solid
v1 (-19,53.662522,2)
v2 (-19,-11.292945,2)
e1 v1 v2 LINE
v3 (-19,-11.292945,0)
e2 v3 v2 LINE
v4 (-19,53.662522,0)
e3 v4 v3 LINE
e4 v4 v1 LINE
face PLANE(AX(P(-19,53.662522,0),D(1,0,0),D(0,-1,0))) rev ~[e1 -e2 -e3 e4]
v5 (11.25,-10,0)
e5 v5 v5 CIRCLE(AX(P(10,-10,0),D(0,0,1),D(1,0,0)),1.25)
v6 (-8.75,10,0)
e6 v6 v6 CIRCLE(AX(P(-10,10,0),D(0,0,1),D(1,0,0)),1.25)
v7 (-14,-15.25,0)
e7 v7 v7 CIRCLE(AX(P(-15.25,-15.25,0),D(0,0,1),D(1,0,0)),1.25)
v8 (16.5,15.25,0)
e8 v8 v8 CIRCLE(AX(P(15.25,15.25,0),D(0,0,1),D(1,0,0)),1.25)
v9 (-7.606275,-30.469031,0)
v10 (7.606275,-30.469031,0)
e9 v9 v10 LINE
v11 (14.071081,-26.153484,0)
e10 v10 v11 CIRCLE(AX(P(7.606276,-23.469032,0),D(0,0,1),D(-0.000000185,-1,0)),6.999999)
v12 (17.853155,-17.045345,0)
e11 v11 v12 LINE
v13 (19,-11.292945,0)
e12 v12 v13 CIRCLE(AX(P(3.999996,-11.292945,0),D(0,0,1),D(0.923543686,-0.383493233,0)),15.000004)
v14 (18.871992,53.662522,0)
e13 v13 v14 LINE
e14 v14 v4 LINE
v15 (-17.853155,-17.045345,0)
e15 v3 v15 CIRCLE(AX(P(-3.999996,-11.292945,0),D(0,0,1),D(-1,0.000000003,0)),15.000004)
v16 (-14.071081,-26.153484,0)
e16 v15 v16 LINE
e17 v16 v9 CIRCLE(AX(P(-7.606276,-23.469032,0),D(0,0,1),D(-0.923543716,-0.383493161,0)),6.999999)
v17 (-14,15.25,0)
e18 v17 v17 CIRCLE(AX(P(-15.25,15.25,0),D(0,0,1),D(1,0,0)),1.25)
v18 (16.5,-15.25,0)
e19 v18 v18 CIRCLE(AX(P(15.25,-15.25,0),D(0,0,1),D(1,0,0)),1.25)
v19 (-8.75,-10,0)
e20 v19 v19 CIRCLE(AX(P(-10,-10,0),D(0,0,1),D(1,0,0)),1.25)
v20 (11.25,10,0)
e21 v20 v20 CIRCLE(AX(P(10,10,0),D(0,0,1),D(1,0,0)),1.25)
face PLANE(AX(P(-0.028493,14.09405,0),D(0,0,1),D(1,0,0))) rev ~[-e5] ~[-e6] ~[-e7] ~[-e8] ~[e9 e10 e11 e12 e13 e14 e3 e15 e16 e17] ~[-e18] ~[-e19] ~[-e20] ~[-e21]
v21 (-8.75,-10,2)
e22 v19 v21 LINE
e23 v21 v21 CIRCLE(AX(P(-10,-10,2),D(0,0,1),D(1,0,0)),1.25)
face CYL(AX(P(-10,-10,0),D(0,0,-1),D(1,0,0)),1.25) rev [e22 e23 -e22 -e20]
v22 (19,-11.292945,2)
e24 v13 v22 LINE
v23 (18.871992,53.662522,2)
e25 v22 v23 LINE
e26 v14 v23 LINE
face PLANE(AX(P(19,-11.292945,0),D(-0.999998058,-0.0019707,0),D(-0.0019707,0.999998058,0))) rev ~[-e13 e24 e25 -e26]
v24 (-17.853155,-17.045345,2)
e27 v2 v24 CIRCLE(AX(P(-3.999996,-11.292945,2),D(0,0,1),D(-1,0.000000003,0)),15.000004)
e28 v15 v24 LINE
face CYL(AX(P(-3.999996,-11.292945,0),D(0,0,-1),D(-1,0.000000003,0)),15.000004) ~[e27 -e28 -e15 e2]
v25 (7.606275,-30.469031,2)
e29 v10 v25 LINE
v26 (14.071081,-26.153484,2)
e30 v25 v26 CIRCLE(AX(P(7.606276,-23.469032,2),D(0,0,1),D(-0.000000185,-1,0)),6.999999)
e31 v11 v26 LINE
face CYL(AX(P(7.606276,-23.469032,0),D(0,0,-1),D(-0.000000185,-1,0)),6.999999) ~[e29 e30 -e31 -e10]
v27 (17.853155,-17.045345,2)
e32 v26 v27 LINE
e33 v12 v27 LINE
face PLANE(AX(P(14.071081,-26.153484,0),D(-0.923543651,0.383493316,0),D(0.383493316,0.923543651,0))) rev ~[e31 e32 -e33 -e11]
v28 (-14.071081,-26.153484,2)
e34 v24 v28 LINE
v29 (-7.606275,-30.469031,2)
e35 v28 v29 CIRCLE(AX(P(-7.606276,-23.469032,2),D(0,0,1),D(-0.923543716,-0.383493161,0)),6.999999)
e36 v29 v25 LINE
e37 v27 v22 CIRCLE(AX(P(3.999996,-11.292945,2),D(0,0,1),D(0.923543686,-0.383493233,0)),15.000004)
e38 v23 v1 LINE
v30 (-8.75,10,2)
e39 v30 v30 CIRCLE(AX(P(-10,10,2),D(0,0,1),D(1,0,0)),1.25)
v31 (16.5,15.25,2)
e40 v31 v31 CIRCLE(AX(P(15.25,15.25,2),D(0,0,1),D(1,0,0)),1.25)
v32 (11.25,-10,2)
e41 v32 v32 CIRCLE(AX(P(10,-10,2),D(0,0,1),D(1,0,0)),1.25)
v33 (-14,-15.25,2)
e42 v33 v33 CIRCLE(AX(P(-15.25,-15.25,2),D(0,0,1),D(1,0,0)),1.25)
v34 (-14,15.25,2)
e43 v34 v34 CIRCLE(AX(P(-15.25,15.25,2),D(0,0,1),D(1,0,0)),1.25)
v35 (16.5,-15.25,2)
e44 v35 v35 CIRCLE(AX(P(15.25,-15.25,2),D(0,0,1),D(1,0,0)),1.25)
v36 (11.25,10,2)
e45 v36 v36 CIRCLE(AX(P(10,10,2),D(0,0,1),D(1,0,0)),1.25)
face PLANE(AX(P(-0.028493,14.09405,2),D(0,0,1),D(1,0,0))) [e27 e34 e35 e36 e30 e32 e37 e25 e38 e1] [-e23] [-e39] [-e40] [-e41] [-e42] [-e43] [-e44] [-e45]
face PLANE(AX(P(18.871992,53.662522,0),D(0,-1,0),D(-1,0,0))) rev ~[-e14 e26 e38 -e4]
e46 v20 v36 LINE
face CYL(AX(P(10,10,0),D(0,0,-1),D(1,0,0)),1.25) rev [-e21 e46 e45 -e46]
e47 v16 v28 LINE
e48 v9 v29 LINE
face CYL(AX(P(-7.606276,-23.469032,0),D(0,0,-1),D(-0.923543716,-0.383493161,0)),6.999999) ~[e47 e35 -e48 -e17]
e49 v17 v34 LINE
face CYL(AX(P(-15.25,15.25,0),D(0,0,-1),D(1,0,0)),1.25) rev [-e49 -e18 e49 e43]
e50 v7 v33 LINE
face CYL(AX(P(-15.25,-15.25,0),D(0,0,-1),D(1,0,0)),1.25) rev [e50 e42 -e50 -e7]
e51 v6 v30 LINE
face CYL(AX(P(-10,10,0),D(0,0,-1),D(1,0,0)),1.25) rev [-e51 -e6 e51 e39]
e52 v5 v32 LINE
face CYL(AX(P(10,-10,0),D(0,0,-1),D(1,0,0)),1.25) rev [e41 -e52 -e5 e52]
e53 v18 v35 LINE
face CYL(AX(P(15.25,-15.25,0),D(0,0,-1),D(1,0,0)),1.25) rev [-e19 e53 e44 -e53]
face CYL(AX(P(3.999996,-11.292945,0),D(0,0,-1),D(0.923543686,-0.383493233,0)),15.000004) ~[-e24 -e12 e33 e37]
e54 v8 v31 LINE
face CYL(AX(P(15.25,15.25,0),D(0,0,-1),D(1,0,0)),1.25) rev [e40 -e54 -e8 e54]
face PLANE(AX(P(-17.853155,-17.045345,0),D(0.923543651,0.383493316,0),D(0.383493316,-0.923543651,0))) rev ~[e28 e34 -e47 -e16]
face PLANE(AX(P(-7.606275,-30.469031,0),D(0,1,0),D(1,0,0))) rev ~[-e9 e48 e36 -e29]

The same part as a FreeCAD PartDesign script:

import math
import FreeCAD as App
import Part
import Sketcher

doc = App.newDocument("Part")
body = doc.addObject("PartDesign::Body", "Body")

sketch1 = body.newObject("Sketcher::SketchObject", "Sketch")
sketch1.AttachmentSupport = (doc.getObject("XY_Plane"), [""])
sketch1.MapMode = "FlatFace"
sketch1.addGeometry(Part.LineSegment(App.Vector(18.9, 53.7, 0), App.Vector(-19, 53.7, 0)), False)
sketch1.addGeometry(Part.LineSegment(App.Vector(-19, 53.7, 0), App.Vector(-19, -11.3, 0)), False)
sketch1.addGeometry(Part.ArcOfCircle(Part.Circle(App.Vector(-4, -11.3, 0), App.Vector(0, 0, 1), 15), math.radians(180), math.radians(203)), False)
sketch1.addGeometry(Part.LineSegment(App.Vector(-17.9, -17, 0), App.Vector(-14.1, -26.2, 0)), False)
sketch1.addGeometry(Part.ArcOfCircle(Part.Circle(App.Vector(-7.6, -23.5, 0), App.Vector(0, 0, 1), 7), math.radians(-157), math.radians(-90)), False)
sketch1.addGeometry(Part.LineSegment(App.Vector(-7.6, -30.5, 0), App.Vector(7.6, -30.5, 0)), False)
sketch1.addGeometry(Part.ArcOfCircle(Part.Circle(App.Vector(7.6, -23.5, 0), App.Vector(0, 0, 1), 7), math.radians(-90), math.radians(-23)), False)
sketch1.addGeometry(Part.LineSegment(App.Vector(14.1, -26.2, 0), App.Vector(17.9, -17, 0)), False)
sketch1.addGeometry(Part.ArcOfCircle(Part.Circle(App.Vector(4, -11.3, 0), App.Vector(0, 0, 1), 15), math.radians(-23), math.radians(0)), False)
sketch1.addGeometry(Part.LineSegment(App.Vector(19, -11.3, 0), App.Vector(18.9, 53.7, 0)), False)
sketch1.addGeometry(Part.Circle(App.Vector(-15.2, -15.2, 0), App.Vector(0, 0, 1), 1.2), False)
sketch1.addGeometry(Part.Circle(App.Vector(-10, -10, 0), App.Vector(0, 0, 1), 1.2), False)
sketch1.addGeometry(Part.Circle(App.Vector(15.2, -15.2, 0), App.Vector(0, 0, 1), 1.2), False)
sketch1.addGeometry(Part.Circle(App.Vector(10, -10, 0), App.Vector(0, 0, 1), 1.2), False)
sketch1.addGeometry(Part.Circle(App.Vector(-10, 10, 0), App.Vector(0, 0, 1), 1.2), False)
sketch1.addGeometry(Part.Circle(App.Vector(-15.2, 15.2, 0), App.Vector(0, 0, 1), 1.2), False)
sketch1.addGeometry(Part.Circle(App.Vector(10, 10, 0), App.Vector(0, 0, 1), 1.2), False)
sketch1.addGeometry(Part.Circle(App.Vector(15.2, 15.2, 0), App.Vector(0, 0, 1), 1.2), False)
sketch1.addConstraint(Sketcher.Constraint("Coincident", 0, 2, 1, 1))
sketch1.addConstraint(Sketcher.Constraint("Tangent", 1, 2, 2, 1))
sketch1.addConstraint(Sketcher.Constraint("Tangent", 2, 2, 3, 1))
sketch1.addConstraint(Sketcher.Constraint("Tangent", 3, 2, 4, 1))
sketch1.addConstraint(Sketcher.Constraint("Tangent", 4, 2, 5, 1))
sketch1.addConstraint(Sketcher.Constraint("Tangent", 5, 2, 6, 1))
sketch1.addConstraint(Sketcher.Constraint("Tangent", 6, 2, 7, 1))
sketch1.addConstraint(Sketcher.Constraint("Tangent", 7, 2, 8, 1))
sketch1.addConstraint(Sketcher.Constraint("Coincident", 8, 2, 9, 1))
sketch1.addConstraint(Sketcher.Constraint("Coincident", 9, 2, 0, 1))
sketch1.addConstraint(Sketcher.Constraint("Horizontal", 0))
sketch1.addConstraint(Sketcher.Constraint("Vertical", 1))
sketch1.addConstraint(Sketcher.Constraint("Horizontal", 5))
sketch1.addConstraint(Sketcher.Constraint("Equal", 4, 6))
sketch1.addConstraint(Sketcher.Constraint("Equal", 2, 8))
sketch1.addConstraint(Sketcher.Constraint("Equal", 10, 11))
sketch1.addConstraint(Sketcher.Constraint("Equal", 11, 12))
sketch1.addConstraint(Sketcher.Constraint("Equal", 12, 13))
sketch1.addConstraint(Sketcher.Constraint("Equal", 13, 14))
sketch1.addConstraint(Sketcher.Constraint("Equal", 14, 15))
sketch1.addConstraint(Sketcher.Constraint("Equal", 15, 16))
sketch1.addConstraint(Sketcher.Constraint("Equal", 16, 17))
sketch1.addConstraint(Sketcher.Constraint("Symmetric", 13, 3, 14, 3, -1, 1))
sketch1.addConstraint(Sketcher.Constraint("Symmetric", 12, 3, 15, 3, -1, 1))
sketch1.addConstraint(Sketcher.Constraint("Symmetric", 11, 3, 16, 3, -1, 1))
sketch1.addConstraint(Sketcher.Constraint("Symmetric", 10, 3, 17, 3, -1, 1))
sketch1.addConstraint(Sketcher.Constraint("Symmetric", 2, 3, 8, 3, -2))
sketch1.addConstraint(Sketcher.Constraint("Symmetric", 10, 3, 12, 3, -2))
sketch1.addConstraint(Sketcher.Constraint("Symmetric", 11, 3, 13, 3, -2))
sketch1.addConstraint(Sketcher.Constraint("Horizontal", 3, 2, 6, 2))
sketch1.addConstraint(Sketcher.Constraint("Horizontal", 1, 2, 8, 2))
sketch1.addConstraint(Sketcher.Constraint("Radius", 4, 6.999999))
sketch1.addConstraint(Sketcher.Constraint("Diameter", 10, 2.5))
sketch1.addConstraint(Sketcher.Constraint("DistanceX", 11, 3, -1, 1, 10.0))
sketch1.addConstraint(Sketcher.Constraint("DistanceY", 11, 3, -1, 1, 10.0))
sketch1.addConstraint(Sketcher.Constraint("DistanceX", 0, 2, -1, 1, 19.0))
sketch1.addConstraint(Sketcher.Constraint("DistanceY", 10, 3, 15, 3, 30.5))
sketch1.addConstraint(Sketcher.Constraint("DistanceX", 10, 3, -1, 1, 15.25))
sketch1.addConstraint(Sketcher.Constraint("Radius", 2, 15.000004))
sketch1.addConstraint(Sketcher.Constraint("DistanceX", 5, 1, 5, 2, 15.21255))
sketch1.addConstraint(Sketcher.Constraint("DistanceY", 2, 2, 1, 2, 5.7524))
sketch1.addConstraint(Sketcher.Constraint("DistanceX", 0, 2, 0, 1, 37.871992))
sketch1.addConstraint(Sketcher.Constraint("DistanceY", 1, 2, 1, 1, 64.955467))
sketch1.addConstraint(Sketcher.Constraint("DistanceY", 4, 2, -1, 1, 30.469031))
pad1 = body.newObject("PartDesign::Pad", "Pad")
pad1.Profile = sketch1
pad1.Length = 2

doc.recompute()
